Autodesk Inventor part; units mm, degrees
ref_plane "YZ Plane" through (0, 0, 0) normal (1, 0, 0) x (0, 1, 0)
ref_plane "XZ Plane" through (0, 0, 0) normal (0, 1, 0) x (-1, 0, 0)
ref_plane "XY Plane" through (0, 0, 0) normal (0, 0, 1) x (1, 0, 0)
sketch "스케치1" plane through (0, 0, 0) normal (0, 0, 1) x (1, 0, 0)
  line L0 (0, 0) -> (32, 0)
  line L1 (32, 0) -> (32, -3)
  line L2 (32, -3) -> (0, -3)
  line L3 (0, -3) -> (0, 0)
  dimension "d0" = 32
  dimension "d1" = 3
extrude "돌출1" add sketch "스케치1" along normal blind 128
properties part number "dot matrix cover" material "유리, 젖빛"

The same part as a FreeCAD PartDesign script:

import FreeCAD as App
import Part
import Sketcher
Q = App.Units.Quantity


def add_polygon(sketch, points):
    """Adds a closed chain of lines whose ends are joined by coincident constraints."""
    first, n = sketch.GeometryCount, len(points)
    for a, b in zip(points, points[1:] + points[:1]):
        sketch.addGeometry(Part.LineSegment(App.Vector(*a, 0), App.Vector(*b, 0)), False)
    for i in range(n):
        sketch.addConstraint(Sketcher.Constraint("Coincident", first + i, 2, first + (i + 1) % n, 1))

doc = App.newDocument("Part")
params = doc.addObject("Spreadsheet::Sheet", "Params")
for row, (alias, value) in enumerate([
    ("sketch1_width", "32 mm"),
    ("sketch1_height", "3 mm"),
    ("pad1_length", "128 mm"),
], start=1):
    params.set(f"A{row}", alias)
    params.set(f"B{row}", "=" + value)
    params.setAlias(f"B{row}", alias)

body = doc.addObject("PartDesign::Body", "Body")

# Sketch on XY plane
sketch1 = doc.addObject("Sketcher::SketchObject", "Sketch")
body.addObject(sketch1)
sketch1.AttachmentSupport = (doc.XY_Plane, [""])
sketch1.MapMode = "FlatFace"
add_polygon(sketch1, [(32, 0), (0, 0), (0, -3), (32, -3)])  # lines 0-3
sketch1.addConstraint([
    Sketcher.Constraint("Horizontal", 0),
    Sketcher.Constraint("Vertical", 1),
    Sketcher.Constraint("Horizontal", 2),
    Sketcher.Constraint("Vertical", 3),
    Sketcher.Constraint("Coincident", 0, 2, -1, 1),
    Sketcher.Constraint("DistanceX", 0, 2, 0, 1, Q("32 mm")),
    Sketcher.Constraint("DistanceY", 1, 2, 1, 1, Q("3 mm")),
])
sketch1.setExpression("Constraints[9]", "Params.sketch1_width")
sketch1.setExpression("Constraints[10]", "Params.sketch1_height")
pad1 = doc.addObject("PartDesign::Pad", "Pad")
body.addObject(pad1)
pad1.Profile = sketch1
pad1.setExpression("Length", "Params.pad1_length")

doc.recompute()
